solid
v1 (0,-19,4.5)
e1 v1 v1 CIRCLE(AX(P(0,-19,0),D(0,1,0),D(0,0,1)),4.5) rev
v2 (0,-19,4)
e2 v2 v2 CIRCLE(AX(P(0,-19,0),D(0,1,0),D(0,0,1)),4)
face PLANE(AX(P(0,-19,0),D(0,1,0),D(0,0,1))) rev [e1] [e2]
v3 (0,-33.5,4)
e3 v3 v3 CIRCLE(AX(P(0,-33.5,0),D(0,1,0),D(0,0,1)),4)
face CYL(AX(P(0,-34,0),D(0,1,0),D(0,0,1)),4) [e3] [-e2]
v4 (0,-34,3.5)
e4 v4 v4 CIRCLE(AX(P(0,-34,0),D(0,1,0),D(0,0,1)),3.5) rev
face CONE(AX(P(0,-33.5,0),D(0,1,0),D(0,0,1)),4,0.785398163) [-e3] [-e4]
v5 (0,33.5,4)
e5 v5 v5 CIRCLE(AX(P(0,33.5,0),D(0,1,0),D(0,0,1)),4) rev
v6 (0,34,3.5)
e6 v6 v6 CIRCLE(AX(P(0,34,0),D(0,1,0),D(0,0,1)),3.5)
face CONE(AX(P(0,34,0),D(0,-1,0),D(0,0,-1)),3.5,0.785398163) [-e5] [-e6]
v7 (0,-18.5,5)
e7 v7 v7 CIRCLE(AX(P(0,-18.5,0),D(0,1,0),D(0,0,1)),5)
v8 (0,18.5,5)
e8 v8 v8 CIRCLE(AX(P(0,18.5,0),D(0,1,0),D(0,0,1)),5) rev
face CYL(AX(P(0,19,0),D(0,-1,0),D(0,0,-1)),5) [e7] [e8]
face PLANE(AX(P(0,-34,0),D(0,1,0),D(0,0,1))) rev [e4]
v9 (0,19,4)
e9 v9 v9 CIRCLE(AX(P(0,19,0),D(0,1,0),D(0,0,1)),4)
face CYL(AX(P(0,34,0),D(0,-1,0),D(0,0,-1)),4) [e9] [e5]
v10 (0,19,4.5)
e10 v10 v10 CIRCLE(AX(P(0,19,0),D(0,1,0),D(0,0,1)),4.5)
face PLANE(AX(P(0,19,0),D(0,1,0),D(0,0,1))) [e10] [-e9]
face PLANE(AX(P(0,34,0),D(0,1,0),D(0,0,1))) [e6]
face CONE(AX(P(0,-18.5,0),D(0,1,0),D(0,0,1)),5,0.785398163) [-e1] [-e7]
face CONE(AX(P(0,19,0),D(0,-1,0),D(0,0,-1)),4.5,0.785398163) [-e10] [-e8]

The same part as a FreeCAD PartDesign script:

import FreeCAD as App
import Part
import Sketcher
Q = App.Units.Quantity


def edges_at(feature, points):
    """Names of the edges that pass closest to the given points."""
    edges = feature.Shape.Edges
    near = lambda p: min(range(len(edges)), key=lambda i: edges[i].distToShape(Part.Vertex(*p))[0])
    return sorted({f"Edge{near(p) + 1}" for p in points})

doc = App.newDocument("Part")
body = doc.addObject("PartDesign::Body", "Body")

# Sketch on XZ plane
sketch1 = doc.addObject("Sketcher::SketchObject", "Sketch")
body.addObject(sketch1)
sketch1.AttachmentSupport = (doc.XZ_Plane, [""])
sketch1.MapMode = "FlatFace"
sketch1.addGeometry(Part.Circle(App.Vector(0, 0, 0), App.Vector(0, 0, 1), 5), False)
sketch1.addConstraint(Sketcher.Constraint("Coincident", 0, 3, -1, 1))
sketch1.addConstraint(Sketcher.Constraint("Diameter", 0, Q("10 mm")))
pad1 = doc.addObject("PartDesign::Pad", "Pad")
body.addObject(pad1)
pad1.Profile = sketch1
pad1.Length = 38
pad1.Midplane = True

# Sketch on XZ plane
sketch2 = doc.addObject("Sketcher::SketchObject", "Sketch001")
body.addObject(sketch2)
sketch2.AttachmentSupport = (doc.XZ_Plane, [""])
sketch2.MapMode = "FlatFace"
sketch2.AttachmentOffset = App.Placement(App.Vector(0, 0, -19), App.Rotation())
sketch2.addGeometry(Part.Circle(App.Vector(0, 0, 0), App.Vector(0, 0, 1), 4), False)
sketch2.addConstraint(Sketcher.Constraint("Coincident", 0, 3, -1, 1))
sketch2.addConstraint(Sketcher.Constraint("Diameter", 0, Q("8 mm")))
pad2 = doc.addObject("PartDesign::Pad", "Pad001")
body.addObject(pad2)
pad2.Profile = sketch2
pad2.Length = 15
pad2.Reversed = True

# Sketch on XZ plane
sketch3 = doc.addObject("Sketcher::SketchObject", "Sketch002")
body.addObject(sketch3)
sketch3.AttachmentSupport = (doc.XZ_Plane, [""])
sketch3.MapMode = "FlatFace"
sketch3.AttachmentOffset = App.Placement(App.Vector(0, 0, 34), App.Rotation())
sketch3.addGeometry(Part.Circle(App.Vector(0, 0, 0), App.Vector(0, 0, 1), 4), False)
sketch3.addConstraint(Sketcher.Constraint("Coincident", 0, 3, -1, 1))
sketch3.addConstraint(Sketcher.Constraint("Diameter", 0, Q("8 mm")))
pad3 = doc.addObject("PartDesign::Pad", "Pad002")
body.addObject(pad3)
pad3.Profile = sketch3
pad3.Length = 15
pad3.Reversed = True
doc.recompute()

chamfer = doc.addObject("PartDesign::Chamfer", "Chamfer")
body.addObject(chamfer)
chamfer.Base = (pad3, edges_at(pad3, [(0, -34, -4), (0, 34, -4)]))
chamfer.Size = 0.5
doc.recompute()

chamfer2 = doc.addObject("PartDesign::Chamfer", "Chamfer001")
body.addObject(chamfer2)
chamfer2.Base = (chamfer, edges_at(chamfer, [(0, -19, -5), (0, 19, -5)]))
chamfer2.Size = 0.5

doc.recompute()
